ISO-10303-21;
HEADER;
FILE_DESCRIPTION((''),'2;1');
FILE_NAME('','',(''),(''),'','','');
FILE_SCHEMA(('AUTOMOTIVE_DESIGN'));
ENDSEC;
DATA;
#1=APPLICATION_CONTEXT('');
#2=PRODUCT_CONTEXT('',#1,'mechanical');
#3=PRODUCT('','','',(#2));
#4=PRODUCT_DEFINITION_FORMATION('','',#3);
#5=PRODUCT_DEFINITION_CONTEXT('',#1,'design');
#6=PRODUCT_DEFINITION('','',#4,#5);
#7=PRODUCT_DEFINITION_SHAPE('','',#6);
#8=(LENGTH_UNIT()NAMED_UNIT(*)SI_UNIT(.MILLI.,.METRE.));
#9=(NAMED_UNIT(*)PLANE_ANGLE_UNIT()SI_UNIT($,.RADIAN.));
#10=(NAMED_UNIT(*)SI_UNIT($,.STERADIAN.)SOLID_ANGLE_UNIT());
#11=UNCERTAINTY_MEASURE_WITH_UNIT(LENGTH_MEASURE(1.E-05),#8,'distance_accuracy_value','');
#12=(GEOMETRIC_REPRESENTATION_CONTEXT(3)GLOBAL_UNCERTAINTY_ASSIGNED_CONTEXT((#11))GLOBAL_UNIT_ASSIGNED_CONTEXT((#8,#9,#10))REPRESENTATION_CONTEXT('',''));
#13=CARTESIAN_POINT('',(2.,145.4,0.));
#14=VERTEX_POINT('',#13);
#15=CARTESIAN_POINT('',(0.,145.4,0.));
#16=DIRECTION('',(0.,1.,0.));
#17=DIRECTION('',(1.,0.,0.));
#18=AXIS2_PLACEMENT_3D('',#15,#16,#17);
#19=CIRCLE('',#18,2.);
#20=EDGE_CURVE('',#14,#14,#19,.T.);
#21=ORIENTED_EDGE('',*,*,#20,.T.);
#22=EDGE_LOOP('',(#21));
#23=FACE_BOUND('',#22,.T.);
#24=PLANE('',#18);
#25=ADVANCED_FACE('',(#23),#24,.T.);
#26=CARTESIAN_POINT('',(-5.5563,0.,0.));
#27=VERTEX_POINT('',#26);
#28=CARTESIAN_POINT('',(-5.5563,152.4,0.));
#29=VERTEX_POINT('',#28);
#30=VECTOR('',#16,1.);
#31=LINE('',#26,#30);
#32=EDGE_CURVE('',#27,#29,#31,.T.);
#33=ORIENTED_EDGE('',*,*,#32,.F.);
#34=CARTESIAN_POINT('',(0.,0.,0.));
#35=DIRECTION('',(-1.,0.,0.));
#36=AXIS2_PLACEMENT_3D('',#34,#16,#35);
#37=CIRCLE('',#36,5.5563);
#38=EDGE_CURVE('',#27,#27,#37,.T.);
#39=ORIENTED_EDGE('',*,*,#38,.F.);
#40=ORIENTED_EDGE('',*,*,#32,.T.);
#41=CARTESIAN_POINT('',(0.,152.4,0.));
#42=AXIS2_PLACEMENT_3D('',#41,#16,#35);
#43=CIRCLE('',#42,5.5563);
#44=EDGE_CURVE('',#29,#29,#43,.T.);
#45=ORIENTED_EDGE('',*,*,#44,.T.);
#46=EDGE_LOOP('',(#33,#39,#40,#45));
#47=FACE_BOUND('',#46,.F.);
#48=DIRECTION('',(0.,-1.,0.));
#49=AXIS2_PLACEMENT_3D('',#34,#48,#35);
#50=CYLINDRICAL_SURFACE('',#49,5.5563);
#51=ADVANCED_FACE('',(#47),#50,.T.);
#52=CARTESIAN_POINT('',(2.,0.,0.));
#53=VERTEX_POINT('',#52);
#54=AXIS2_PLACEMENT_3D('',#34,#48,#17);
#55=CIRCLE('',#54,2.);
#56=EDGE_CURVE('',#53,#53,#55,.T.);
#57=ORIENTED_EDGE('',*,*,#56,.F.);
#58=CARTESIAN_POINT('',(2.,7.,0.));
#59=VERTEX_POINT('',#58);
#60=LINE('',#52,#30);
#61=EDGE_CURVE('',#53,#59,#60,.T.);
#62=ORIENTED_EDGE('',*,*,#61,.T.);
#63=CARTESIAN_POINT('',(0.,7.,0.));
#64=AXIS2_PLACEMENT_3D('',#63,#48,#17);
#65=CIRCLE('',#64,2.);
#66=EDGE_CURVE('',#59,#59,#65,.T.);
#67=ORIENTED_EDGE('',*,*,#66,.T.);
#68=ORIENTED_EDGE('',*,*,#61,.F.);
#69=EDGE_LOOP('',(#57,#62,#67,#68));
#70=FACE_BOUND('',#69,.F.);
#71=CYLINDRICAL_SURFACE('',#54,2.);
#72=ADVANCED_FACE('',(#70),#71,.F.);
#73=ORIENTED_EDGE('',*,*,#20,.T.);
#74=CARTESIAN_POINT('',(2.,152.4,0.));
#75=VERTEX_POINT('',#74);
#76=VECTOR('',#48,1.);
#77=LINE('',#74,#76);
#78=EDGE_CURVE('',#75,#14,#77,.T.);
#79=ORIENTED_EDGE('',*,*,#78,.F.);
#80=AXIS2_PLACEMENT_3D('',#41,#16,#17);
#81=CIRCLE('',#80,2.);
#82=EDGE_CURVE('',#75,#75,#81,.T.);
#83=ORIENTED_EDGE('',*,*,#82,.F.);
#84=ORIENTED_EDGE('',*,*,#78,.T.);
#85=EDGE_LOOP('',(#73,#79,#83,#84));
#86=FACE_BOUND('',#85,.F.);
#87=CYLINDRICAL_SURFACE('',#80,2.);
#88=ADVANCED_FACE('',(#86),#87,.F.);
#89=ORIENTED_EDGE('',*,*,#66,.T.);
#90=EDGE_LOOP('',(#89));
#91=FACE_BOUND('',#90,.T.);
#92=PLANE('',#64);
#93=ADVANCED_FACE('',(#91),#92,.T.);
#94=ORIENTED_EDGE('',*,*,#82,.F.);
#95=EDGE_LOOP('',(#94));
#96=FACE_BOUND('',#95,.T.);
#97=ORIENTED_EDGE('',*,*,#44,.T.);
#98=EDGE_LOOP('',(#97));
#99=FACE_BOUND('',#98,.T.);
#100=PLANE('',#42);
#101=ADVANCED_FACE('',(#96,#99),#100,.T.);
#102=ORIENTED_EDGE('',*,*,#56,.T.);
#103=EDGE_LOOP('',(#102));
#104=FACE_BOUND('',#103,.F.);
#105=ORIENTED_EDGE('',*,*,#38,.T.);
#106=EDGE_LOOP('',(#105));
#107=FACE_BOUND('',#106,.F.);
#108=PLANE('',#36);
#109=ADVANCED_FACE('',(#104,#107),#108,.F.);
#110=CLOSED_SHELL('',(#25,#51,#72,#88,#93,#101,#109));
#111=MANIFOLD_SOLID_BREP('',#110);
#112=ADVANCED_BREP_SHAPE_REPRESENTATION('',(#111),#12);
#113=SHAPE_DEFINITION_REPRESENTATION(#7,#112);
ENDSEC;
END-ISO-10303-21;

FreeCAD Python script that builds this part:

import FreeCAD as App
import Part
import Sketcher
Q = App.Units.Quantity

doc = App.newDocument("Part")
body = doc.addObject("PartDesign::Body", "Body")

sketch1 = body.newObject("Sketcher::SketchObject", "Sketch")
sketch1.AttachmentSupport = (doc.getObject("XZ_Plane"), [""])
sketch1.MapMode = "FlatFace"
sketch1.addGeometry(Part.Circle(App.Vector(0, 0, 0), App.Vector(0, 0, 1), 6), False)
sketch1.addConstraint([
    Sketcher.Constraint("Coincident", 0, 3, -1, 1),
    Sketcher.Constraint("Diameter", 0, Q("0.4375 in")),
])
pad1 = body.newObject("PartDesign::Pad", "Pad")
pad1.Profile = sketch1
pad1.Length = Q("6 in")
pad1.Reversed = True

sketch2 = body.newObject("Sketcher::SketchObject", "Sketch001")
sketch2.AttachmentSupport = (doc.getObject("XZ_Plane"), [""])
sketch2.MapMode = "FlatFace"
sketch2.AttachmentOffset = App.Placement(App.Vector(0, 0, -6 * 25.4), App.Rotation())
sketch2.addGeometry(Part.Circle(App.Vector(0, 0, 0), App.Vector(0, 0, 1), 2), False)
sketch2.addConstraint([
    Sketcher.Constraint("Coincident", 0, 3, -1, 1),
    Sketcher.Constraint("Diameter", 0, 4.0),
])
pocket1 = body.newObject("PartDesign::Pocket", "Pocket")
pocket1.Profile = sketch2
pocket1.Length = Q("0.2755906 in")
pocket1.Reversed = True

sketch3 = body.newObject("Sketcher::SketchObject", "Sketch002")
sketch3.AttachmentSupport = (doc.getObject("XZ_Plane"), [""])
sketch3.MapMode = "FlatFace"
sketch3.addGeometry(Part.Circle(App.Vector(0, 0, 0), App.Vector(0, 0, 1), 2), False)
sketch3.addConstraint([
    Sketcher.Constraint("Coincident", 0, 3, -1, 1),
    Sketcher.Constraint("Diameter", 0, 4.0),
])
pocket2 = body.newObject("PartDesign::Pocket", "Pocket001")
pocket2.Profile = sketch3
pocket2.Length = Q("0.2755906 in")

doc.recompute()
